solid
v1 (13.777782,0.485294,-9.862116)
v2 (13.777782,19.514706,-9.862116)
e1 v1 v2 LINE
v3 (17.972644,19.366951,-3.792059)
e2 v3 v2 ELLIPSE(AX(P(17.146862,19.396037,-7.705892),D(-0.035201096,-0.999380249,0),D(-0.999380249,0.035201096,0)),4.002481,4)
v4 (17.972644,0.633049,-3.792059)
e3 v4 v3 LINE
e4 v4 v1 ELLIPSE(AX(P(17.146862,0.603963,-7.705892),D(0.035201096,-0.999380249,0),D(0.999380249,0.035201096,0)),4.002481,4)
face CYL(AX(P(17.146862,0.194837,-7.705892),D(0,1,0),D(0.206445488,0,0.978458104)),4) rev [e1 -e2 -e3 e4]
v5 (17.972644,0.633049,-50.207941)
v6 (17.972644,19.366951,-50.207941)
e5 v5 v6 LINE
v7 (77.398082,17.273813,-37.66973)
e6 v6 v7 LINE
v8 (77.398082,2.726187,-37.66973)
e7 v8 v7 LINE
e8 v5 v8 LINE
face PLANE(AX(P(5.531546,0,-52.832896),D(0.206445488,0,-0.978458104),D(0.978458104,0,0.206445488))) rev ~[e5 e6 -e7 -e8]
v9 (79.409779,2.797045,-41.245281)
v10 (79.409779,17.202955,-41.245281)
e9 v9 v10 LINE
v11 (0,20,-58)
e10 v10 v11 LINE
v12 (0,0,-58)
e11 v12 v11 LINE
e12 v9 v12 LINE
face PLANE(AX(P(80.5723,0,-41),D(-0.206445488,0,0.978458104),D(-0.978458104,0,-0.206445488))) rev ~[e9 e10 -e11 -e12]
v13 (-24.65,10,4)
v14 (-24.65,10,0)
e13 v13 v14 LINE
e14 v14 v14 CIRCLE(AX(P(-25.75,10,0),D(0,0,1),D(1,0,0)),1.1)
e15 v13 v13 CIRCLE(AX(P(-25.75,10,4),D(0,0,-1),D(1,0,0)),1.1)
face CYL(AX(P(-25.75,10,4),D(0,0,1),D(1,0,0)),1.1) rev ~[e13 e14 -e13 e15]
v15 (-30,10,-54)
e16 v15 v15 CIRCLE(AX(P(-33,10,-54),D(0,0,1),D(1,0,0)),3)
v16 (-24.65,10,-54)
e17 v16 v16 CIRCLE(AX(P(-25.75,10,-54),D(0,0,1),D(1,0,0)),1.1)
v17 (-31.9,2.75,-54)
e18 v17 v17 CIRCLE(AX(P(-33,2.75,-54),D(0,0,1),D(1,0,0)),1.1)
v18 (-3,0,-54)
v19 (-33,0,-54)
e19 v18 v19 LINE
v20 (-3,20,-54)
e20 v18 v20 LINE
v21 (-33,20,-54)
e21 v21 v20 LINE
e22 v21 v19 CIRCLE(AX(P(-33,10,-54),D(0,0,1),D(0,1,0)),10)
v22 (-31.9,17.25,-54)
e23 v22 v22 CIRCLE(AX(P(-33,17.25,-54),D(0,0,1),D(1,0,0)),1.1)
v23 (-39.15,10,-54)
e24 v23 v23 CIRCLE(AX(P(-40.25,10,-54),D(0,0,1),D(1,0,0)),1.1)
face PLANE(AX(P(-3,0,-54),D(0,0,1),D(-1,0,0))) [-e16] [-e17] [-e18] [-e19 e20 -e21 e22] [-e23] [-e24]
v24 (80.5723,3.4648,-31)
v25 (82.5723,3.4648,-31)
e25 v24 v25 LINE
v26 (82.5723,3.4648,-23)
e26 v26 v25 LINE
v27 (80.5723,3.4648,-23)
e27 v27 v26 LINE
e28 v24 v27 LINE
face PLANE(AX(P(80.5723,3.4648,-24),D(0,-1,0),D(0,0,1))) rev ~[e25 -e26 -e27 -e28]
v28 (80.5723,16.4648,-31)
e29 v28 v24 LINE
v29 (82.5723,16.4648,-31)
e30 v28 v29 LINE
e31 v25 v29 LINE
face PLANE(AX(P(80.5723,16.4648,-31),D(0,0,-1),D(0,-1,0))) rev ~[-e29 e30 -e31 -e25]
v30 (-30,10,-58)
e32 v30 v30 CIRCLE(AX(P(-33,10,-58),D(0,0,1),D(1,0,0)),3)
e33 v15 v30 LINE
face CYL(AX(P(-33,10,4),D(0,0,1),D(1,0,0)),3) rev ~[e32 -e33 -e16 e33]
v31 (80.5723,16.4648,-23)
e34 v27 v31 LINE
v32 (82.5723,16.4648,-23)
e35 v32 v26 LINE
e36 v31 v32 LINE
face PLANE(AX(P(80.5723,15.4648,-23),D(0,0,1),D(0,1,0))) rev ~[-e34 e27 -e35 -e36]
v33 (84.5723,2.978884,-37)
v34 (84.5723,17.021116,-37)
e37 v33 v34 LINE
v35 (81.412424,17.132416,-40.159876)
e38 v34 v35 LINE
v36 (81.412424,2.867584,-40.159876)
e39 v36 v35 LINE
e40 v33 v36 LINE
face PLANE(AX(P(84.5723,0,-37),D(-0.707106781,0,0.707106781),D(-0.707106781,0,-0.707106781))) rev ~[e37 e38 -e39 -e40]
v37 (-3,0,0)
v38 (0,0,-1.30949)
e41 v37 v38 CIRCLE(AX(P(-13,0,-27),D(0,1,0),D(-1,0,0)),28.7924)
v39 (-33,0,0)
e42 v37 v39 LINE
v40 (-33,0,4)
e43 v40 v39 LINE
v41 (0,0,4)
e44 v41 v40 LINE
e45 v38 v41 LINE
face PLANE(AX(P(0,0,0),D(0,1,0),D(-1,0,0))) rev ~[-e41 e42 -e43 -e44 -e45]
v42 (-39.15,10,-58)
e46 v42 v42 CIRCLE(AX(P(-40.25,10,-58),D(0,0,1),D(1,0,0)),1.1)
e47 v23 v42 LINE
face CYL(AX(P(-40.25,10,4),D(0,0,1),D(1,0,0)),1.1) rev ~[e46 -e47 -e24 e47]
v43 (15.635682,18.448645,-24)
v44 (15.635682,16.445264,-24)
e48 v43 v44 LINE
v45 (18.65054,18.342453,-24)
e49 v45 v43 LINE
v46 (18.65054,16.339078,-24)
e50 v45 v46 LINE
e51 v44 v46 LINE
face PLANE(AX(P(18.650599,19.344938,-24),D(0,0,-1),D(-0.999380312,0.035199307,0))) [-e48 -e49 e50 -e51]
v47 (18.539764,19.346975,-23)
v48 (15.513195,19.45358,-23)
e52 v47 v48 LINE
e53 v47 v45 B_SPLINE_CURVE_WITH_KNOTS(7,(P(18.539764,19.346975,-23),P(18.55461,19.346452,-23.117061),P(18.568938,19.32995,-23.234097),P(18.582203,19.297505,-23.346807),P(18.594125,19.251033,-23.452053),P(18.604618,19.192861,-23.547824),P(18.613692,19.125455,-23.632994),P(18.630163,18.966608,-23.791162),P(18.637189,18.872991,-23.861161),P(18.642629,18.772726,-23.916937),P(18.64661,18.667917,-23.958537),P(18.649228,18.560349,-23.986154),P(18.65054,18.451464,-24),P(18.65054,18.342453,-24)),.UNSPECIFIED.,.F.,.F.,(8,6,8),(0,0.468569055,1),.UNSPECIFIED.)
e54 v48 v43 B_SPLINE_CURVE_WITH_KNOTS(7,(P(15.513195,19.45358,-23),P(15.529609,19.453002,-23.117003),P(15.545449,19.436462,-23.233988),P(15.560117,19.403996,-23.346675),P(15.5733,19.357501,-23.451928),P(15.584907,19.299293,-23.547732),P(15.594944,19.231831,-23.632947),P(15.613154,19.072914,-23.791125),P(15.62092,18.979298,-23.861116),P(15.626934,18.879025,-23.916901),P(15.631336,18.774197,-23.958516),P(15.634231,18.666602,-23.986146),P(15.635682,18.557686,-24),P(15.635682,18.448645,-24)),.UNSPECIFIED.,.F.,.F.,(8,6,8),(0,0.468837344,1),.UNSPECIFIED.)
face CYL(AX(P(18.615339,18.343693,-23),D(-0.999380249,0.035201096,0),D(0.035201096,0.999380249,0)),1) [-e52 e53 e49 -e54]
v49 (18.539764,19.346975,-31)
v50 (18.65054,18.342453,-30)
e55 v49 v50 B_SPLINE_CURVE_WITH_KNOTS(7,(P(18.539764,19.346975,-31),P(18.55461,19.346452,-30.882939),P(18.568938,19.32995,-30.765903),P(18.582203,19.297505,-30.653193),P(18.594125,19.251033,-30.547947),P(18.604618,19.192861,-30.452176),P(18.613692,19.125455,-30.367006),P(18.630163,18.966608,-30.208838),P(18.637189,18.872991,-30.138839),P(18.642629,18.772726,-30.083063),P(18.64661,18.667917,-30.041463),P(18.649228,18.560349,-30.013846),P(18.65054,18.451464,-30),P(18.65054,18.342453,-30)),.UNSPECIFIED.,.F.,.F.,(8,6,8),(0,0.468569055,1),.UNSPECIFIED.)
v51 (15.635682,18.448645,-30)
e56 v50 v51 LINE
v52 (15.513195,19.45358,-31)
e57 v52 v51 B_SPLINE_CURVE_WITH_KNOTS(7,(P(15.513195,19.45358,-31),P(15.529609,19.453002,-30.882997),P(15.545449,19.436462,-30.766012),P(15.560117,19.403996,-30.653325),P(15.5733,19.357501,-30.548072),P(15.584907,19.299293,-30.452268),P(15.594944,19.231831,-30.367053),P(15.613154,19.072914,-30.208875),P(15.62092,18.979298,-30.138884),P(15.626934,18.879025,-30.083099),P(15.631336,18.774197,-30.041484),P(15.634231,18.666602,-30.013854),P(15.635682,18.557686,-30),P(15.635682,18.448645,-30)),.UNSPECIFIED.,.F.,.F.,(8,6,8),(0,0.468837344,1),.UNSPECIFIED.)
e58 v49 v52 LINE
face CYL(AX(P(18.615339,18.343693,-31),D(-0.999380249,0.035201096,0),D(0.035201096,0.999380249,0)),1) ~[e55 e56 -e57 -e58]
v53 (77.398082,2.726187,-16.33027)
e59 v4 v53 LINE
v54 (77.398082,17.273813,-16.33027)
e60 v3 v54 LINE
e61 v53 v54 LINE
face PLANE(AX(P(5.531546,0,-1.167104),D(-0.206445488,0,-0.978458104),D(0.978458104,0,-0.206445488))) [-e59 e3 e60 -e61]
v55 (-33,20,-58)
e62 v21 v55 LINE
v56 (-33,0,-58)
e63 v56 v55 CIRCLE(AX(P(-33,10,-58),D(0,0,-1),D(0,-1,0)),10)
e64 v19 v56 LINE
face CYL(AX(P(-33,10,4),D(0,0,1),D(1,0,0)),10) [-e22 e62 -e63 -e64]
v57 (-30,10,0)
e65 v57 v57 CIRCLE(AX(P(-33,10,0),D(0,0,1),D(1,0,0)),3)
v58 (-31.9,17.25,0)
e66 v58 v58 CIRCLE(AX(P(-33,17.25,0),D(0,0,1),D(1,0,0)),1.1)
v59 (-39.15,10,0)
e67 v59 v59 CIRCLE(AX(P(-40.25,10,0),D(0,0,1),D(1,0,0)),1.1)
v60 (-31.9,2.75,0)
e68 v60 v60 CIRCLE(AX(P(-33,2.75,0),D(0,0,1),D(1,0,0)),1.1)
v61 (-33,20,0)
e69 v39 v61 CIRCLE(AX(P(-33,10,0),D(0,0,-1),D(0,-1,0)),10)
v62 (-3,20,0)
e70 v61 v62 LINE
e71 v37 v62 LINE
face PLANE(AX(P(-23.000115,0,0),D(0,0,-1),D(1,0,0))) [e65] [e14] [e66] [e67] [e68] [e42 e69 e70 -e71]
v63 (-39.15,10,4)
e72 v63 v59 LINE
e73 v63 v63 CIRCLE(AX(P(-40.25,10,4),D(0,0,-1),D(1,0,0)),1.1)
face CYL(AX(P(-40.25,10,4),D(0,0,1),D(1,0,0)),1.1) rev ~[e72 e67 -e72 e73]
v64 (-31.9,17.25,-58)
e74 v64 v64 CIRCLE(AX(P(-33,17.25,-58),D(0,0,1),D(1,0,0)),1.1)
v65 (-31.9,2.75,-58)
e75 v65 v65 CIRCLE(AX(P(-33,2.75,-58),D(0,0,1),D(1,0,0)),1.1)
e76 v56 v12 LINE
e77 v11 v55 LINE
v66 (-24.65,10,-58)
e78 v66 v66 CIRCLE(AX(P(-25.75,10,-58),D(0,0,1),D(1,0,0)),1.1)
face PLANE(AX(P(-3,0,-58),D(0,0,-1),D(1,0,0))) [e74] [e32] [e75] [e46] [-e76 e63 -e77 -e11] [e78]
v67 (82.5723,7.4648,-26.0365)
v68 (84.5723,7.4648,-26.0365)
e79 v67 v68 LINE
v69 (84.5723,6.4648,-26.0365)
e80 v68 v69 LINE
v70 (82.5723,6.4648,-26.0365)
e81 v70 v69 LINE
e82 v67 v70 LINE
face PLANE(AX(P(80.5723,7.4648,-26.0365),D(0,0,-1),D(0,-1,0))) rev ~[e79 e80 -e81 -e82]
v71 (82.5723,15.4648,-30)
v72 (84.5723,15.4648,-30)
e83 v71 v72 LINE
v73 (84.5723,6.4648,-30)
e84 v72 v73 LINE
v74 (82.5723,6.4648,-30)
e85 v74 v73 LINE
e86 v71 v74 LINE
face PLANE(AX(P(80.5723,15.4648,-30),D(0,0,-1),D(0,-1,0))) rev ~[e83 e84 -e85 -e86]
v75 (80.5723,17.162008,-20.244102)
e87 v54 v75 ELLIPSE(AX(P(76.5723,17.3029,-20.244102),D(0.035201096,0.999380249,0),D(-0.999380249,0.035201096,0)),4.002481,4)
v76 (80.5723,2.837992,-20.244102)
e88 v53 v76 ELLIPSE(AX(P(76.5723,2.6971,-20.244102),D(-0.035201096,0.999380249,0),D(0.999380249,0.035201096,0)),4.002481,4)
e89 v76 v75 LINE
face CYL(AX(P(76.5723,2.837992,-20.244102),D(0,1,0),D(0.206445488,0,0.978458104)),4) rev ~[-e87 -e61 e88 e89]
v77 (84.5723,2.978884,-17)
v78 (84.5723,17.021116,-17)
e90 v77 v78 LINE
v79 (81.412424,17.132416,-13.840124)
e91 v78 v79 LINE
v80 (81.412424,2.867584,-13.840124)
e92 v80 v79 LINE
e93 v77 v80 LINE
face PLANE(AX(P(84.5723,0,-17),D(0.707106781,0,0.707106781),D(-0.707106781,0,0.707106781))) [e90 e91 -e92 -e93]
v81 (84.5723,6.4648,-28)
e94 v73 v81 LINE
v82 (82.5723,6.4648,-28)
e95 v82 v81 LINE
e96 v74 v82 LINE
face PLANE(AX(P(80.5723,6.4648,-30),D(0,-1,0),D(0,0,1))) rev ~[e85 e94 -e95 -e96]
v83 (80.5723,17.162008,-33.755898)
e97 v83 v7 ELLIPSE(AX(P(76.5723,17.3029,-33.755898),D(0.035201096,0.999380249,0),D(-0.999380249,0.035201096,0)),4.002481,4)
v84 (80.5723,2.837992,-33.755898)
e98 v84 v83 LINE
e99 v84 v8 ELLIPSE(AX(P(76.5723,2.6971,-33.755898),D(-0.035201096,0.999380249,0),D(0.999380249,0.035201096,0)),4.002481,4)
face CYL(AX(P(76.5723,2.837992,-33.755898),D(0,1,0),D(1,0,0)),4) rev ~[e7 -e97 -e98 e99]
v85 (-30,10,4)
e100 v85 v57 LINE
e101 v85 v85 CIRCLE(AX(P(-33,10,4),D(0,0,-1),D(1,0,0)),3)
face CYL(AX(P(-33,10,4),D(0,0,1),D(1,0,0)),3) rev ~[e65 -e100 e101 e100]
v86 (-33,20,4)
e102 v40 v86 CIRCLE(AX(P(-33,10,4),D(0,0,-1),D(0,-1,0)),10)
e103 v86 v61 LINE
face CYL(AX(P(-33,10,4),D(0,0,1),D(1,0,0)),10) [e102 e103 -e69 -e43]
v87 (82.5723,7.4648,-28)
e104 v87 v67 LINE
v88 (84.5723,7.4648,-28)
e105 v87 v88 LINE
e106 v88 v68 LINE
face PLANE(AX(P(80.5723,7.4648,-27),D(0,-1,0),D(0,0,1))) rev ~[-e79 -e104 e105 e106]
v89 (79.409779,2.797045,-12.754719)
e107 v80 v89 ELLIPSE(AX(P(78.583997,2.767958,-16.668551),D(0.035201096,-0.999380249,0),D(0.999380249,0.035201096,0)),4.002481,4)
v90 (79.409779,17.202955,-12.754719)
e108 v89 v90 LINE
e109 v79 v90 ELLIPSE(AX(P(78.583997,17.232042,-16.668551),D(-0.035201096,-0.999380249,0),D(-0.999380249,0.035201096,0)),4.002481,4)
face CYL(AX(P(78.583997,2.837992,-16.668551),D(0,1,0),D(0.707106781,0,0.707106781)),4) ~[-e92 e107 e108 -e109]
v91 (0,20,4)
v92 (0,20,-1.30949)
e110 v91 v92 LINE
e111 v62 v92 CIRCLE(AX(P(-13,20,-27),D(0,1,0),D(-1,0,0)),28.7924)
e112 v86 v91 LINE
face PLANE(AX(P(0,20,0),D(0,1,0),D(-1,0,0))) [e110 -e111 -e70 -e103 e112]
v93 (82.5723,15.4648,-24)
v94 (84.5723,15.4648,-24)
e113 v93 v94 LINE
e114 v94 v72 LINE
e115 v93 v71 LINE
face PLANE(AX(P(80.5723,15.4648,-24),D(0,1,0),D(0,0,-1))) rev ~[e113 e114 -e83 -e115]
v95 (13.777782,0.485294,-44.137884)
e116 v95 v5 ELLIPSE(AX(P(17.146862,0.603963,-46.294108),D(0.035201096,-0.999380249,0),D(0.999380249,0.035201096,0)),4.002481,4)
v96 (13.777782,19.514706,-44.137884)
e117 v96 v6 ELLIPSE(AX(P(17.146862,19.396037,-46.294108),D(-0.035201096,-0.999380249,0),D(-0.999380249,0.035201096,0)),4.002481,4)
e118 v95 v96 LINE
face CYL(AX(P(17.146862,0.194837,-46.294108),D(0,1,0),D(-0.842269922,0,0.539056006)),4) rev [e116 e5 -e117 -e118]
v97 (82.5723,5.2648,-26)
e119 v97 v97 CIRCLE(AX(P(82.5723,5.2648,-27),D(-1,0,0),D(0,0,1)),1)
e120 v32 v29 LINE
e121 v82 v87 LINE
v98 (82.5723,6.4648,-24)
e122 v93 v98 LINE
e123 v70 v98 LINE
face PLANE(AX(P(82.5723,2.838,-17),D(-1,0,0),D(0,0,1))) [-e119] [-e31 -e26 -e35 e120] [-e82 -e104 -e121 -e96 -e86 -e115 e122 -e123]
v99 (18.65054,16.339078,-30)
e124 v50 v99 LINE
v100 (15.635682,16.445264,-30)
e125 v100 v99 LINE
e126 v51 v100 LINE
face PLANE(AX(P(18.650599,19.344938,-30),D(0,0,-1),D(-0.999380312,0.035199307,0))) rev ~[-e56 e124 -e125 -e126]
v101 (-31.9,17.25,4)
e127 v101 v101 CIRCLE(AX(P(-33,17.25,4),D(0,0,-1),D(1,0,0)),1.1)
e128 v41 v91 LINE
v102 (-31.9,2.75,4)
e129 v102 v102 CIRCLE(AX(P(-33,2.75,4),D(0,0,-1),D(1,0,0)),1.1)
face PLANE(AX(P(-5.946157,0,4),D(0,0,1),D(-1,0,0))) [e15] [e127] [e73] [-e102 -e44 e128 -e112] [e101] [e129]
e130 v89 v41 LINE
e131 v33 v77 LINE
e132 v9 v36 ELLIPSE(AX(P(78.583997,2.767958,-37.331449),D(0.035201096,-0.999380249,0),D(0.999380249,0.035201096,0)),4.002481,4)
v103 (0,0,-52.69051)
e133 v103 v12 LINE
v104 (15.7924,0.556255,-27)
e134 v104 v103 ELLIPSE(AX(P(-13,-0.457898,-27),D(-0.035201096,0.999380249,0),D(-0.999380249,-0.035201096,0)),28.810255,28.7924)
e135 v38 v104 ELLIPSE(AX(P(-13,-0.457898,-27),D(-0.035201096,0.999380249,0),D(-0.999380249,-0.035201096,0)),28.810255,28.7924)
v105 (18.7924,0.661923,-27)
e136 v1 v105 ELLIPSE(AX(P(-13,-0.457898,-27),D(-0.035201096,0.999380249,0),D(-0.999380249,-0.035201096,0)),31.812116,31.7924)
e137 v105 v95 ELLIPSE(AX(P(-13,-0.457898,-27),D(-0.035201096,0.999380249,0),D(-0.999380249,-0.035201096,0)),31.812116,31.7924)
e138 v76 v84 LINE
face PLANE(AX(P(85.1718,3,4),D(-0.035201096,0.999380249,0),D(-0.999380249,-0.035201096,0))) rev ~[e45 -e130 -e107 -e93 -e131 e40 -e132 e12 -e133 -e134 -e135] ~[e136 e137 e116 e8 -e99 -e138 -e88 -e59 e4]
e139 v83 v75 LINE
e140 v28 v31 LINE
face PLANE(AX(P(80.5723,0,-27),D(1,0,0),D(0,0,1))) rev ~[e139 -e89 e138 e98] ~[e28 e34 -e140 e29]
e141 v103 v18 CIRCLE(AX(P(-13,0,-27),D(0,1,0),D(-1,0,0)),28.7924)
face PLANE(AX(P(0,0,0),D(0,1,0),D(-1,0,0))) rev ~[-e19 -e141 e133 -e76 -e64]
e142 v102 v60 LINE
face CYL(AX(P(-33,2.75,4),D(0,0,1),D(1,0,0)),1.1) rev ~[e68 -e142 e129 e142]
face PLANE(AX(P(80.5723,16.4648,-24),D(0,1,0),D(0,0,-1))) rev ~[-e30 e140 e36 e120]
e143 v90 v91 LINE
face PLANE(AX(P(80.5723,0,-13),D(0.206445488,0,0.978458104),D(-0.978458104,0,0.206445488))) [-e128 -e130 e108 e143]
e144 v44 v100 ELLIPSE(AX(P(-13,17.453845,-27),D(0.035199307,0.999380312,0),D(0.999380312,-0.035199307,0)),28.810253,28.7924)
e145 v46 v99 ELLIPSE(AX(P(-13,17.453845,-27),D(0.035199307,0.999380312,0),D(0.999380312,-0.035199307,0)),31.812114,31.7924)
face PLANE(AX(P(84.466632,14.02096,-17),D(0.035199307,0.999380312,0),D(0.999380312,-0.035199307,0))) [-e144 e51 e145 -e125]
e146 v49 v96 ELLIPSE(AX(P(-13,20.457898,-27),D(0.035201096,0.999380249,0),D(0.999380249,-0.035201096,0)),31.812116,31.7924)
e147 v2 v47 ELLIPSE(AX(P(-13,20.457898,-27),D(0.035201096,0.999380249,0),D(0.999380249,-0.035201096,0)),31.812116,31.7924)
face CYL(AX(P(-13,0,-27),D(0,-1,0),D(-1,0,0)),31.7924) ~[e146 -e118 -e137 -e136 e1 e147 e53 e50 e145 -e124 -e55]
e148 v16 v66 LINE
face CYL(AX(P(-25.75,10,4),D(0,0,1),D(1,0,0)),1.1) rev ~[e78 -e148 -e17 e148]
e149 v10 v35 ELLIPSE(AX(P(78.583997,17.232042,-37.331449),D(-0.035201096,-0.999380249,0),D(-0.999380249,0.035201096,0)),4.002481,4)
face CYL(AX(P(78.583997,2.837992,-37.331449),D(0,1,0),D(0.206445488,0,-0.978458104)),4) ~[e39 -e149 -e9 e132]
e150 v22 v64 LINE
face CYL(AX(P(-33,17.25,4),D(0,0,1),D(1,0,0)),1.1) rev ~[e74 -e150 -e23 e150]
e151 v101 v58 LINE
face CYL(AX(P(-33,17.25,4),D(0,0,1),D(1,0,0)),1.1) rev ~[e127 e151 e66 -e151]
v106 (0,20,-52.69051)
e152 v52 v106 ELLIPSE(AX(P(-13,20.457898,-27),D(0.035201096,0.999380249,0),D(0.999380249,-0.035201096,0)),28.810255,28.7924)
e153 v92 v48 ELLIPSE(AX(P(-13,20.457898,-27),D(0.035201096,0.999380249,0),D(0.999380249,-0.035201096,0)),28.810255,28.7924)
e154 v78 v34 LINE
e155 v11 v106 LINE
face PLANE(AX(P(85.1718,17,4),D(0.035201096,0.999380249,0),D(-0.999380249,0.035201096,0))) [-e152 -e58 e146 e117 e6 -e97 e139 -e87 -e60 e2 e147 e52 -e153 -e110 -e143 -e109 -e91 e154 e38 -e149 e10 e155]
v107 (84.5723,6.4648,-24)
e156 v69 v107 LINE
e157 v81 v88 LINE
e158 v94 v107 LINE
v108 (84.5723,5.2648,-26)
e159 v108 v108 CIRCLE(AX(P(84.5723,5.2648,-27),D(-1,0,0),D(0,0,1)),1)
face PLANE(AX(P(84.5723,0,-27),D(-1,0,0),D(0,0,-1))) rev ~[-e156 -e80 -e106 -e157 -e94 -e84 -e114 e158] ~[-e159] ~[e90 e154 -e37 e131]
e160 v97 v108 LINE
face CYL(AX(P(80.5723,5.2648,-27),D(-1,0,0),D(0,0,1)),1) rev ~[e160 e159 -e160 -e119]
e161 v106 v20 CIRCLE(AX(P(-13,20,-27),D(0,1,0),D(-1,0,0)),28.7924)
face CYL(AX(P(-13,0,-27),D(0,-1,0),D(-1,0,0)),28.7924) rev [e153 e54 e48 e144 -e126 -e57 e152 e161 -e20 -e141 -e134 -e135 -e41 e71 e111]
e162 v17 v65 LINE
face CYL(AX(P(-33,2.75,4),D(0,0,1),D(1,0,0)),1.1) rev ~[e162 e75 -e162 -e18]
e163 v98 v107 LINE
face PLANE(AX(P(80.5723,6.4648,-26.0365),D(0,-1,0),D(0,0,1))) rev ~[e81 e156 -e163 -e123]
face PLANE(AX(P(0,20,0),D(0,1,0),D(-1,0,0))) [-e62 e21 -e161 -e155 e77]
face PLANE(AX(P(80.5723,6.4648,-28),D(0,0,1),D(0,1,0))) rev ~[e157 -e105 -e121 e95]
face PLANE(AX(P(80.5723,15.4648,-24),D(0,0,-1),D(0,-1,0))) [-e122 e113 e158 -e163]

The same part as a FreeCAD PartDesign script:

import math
import FreeCAD as App
import Part
import Sketcher
Q = App.Units.Quantity


def edges_at(feature, points):
    """Names of the edges that pass closest to the given points."""
    edges = feature.Shape.Edges
    near = lambda p: min(range(len(edges)), key=lambda i: edges[i].distToShape(Part.Vertex(*p))[0])
    return sorted({f"Edge{near(p) + 1}" for p in points})

doc = App.newDocument("Part")
body = doc.addObject("PartDesign::Body", "Body")

# Sketch on XZ plane
sketch1 = doc.addObject("Sketcher::SketchObject", "Sketch")
body.addObject(sketch1)
sketch1.AttachmentSupport = (doc.XZ_Plane, [""])
sketch1.MapMode = "FlatFace"
sketch1.addGeometry(Part.LineSegment(App.Vector(-3, 0, 0), App.Vector(-43, 0, 0)), False)
sketch1.addGeometry(Part.LineSegment(App.Vector(-43, 0, 0), App.Vector(-43, 4, 0)), False)
sketch1.addGeometry(Part.LineSegment(App.Vector(-43, 4, 0), App.Vector(0, 4, 0)), False)
sketch1.addGeometry(Part.LineSegment(App.Vector(0, 4, 0), App.Vector(80.5723, -13, 0)), False)
sketch1.addGeometry(Part.LineSegment(App.Vector(80.5723, -13, 0), App.Vector(84.5723, -17, 0)), False)
sketch1.addGeometry(Part.LineSegment(App.Vector(84.5723, -17, 0), App.Vector(84.5723, -37, 0)), False)
sketch1.addGeometry(Part.LineSegment(App.Vector(84.5723, -37, 0), App.Vector(80.5723, -41, 0)), False)
sketch1.addGeometry(Part.LineSegment(App.Vector(80.5723, -41, 0), App.Vector(0, -58, 0)), False)
sketch1.addGeometry(Part.LineSegment(App.Vector(0, -58, 0), App.Vector(-43, -58, 0)), False)
sketch1.addGeometry(Part.LineSegment(App.Vector(-43, -58, 0), App.Vector(-43, -54, 0)), False)
sketch1.addGeometry(Part.LineSegment(App.Vector(-43, -54, 0), App.Vector(-3, -54, 0)), False)
sketch1.addGeometry(Part.ArcOfCircle(Part.Circle(App.Vector(-13, -27, 0), App.Vector(0, 0, 1), 28.7924), math.radians(-69.676863), math.radians(69.676863)), False)
sketch1.addGeometry(Part.ArcOfCircle(Part.Circle(App.Vector(-13, -27, 0), App.Vector(0, 0, 1), 31.7924), math.radians(-54.345768), math.radians(54.345768)), False)
sketch1.addGeometry(Part.LineSegment(App.Vector(5.531546, -52.832896, 0), App.Vector(80.5723, -37, 0)), False)
sketch1.addGeometry(Part.LineSegment(App.Vector(80.5723, -37, 0), App.Vector(80.5723, -17, 0)), False)
sketch1.addGeometry(Part.LineSegment(App.Vector(80.5723, -17, 0), App.Vector(5.531546, -1.167104, 0)), False)
sketch1.addConstraint(Sketcher.Constraint("Coincident", 0, 2, 1, 1))
sketch1.addConstraint(Sketcher.Constraint("Coincident", 1, 2, 2, 1))
sketch1.addConstraint(Sketcher.Constraint("Coincident", 2, 2, 3, 1))
sketch1.addConstraint(Sketcher.Constraint("Coincident", 3, 2, 4, 1))
sketch1.addConstraint(Sketcher.Constraint("Coincident", 4, 2, 5, 1))
sketch1.addConstraint(Sketcher.Constraint("Coincident", 5, 2, 6, 1))
sketch1.addConstraint(Sketcher.Constraint("Coincident", 6, 2, 7, 1))
sketch1.addConstraint(Sketcher.Constraint("Coincident", 7, 2, 8, 1))
sketch1.addConstraint(Sketcher.Constraint("Coincident", 8, 2, 9, 1))
sketch1.addConstraint(Sketcher.Constraint("Coincident", 9, 2, 10, 1))
sketch1.addConstraint(Sketcher.Constraint("Coincident", 10, 2, 11, 1))
sketch1.addConstraint(Sketcher.Constraint("Coincident", 11, 2, 0, 1))
sketch1.addConstraint(Sketcher.Constraint("Coincident", 12, 1, 13, 1))
sketch1.addConstraint(Sketcher.Constraint("Coincident", 13, 2, 14, 1))
sketch1.addConstraint(Sketcher.Constraint("Coincident", 14, 2, 15, 1))
sketch1.addConstraint(Sketcher.Constraint("Coincident", 15, 2, 12, 2))
sketch1.addConstraint(Sketcher.Constraint("Horizontal", 0))
sketch1.addConstraint(Sketcher.Constraint("Vertical", 1))
sketch1.addConstraint(Sketcher.Constraint("Horizontal", 2))
sketch1.addConstraint(Sketcher.Constraint("Vertical", 5))
sketch1.addConstraint(Sketcher.Constraint("Horizontal", 8))
sketch1.addConstraint(Sketcher.Constraint("Vertical", 9))
sketch1.addConstraint(Sketcher.Constraint("Horizontal", 10))
sketch1.addConstraint(Sketcher.Constraint("Vertical", 14))
sketch1.addConstraint(Sketcher.Constraint("Coincident", 12, 3, 11, 3))
sketch1.addConstraint(Sketcher.Constraint("PointOnObject", 0, 2, -1))
sketch1.addConstraint(Sketcher.Constraint("PointOnObject", 2, 2, -2))
sketch1.addConstraint(Sketcher.Constraint("PointOnObject", 7, 2, -2))
sketch1.addConstraint(Sketcher.Constraint("DistanceX", 0, 2, 0, 1, Q("40 mm")))
sketch1.addConstraint(Sketcher.Constraint("DistanceX", 10, 1, 10, 2, Q("40 mm")))
sketch1.addConstraint(Sketcher.Constraint("DistanceY", 1, 1, 1, 2, Q("4 mm")))
sketch1.addConstraint(Sketcher.Constraint("DistanceY", 9, 1, 9, 2, Q("4 mm")))
sketch1.addConstraint(Sketcher.Constraint("DistanceY", 9, 2, -1, 1, Q("54 mm")))
sketch1.addConstraint(Sketcher.Constraint("DistanceX", 10, 2, -1, 1, Q("3 mm")))
sketch1.addConstraint(Sketcher.Constraint("DistanceX", 11, 2, -1, 1, Q("3 mm")))
sketch1.addConstraint(Sketcher.Constraint("DistanceX", 3, 2, 4, 2, Q("4 mm")))
sketch1.addConstraint(Sketcher.Constraint("DistanceY", 4, 2, 3, 2, Q("4 mm")))
sketch1.addConstraint(Sketcher.Constraint("DistanceY", 11, 3, 4, 2, Q("10 mm")))
sketch1.addConstraint(Sketcher.Constraint("DistanceY", 5, 2, 11, 3, Q("10 mm")))
sketch1.addConstraint(Sketcher.Constraint("DistanceX", 6, 2, 5, 2, Q("4 mm")))
sketch1.addConstraint(Sketcher.Constraint("DistanceY", 6, 2, 5, 2, Q("4 mm")))
sketch1.addConstraint(Sketcher.Constraint("DistanceX", 11, 3, 10, 2, Q("10 mm")))
sketch1.addConstraint(Sketcher.Constraint("DistanceX", 13, 2, 5, 2, Q("4 mm")))
sketch1.addConstraint(Sketcher.Constraint("DistanceY", 6, 2, 13, 2, Q("4 mm")))
sketch1.addConstraint(Sketcher.Constraint("DistanceY", 14, 2, 3, 2, Q("4 mm")))
sketch1.addConstraint(Sketcher.Constraint("Radius", 12, Q("31.7924 mm")))
sketch1.addConstraint(Sketcher.Constraint("DistanceY", 12, 1, -1, 1, Q("52.833 mm")))
sketch1.addConstraint(Sketcher.Constraint("DistanceY", 15, 2, -1, 1, Q("1.167 mm")))
sketch1.addConstraint(Sketcher.Constraint("Distance", 3, Q("82.3462 mm")))
pad1 = doc.addObject("PartDesign::Pad", "Pad")
body.addObject(pad1)
pad1.Profile = sketch1
pad1.Length = 20
pad1.Reversed = True

# Sketch on XY plane
sketch2 = doc.addObject("Sketcher::SketchObject", "Sketch001")
body.addObject(sketch2)
sketch2.AttachmentSupport = (doc.XY_Plane, [""])
sketch2.MapMode = "FlatFace"
sketch2.AttachmentOffset = App.Placement(App.Vector(0, 0, 4), App.Rotation())
sketch2.addGeometry(Part.LineSegment(App.Vector(85.2, 20, 0), App.Vector(0, 20, 0)), False)
sketch2.addGeometry(Part.LineSegment(App.Vector(0, 20, 0), App.Vector(85.2, 17, 0)), False)
sketch2.addGeometry(Part.LineSegment(App.Vector(85.2, 17, 0), App.Vector(85.2, 20, 0)), False)
sketch2.addGeometry(Part.ArcOfCircle(Part.Circle(App.Vector(-33, 10, 0), App.Vector(0, 0, 1), 10), math.radians(90), math.radians(180)), False)
sketch2.addGeometry(Part.LineSegment(App.Vector(-33, 20, 0), App.Vector(-43, 20, 0)), False)
sketch2.addGeometry(Part.LineSegment(App.Vector(-43, 20, 0), App.Vector(-43, 10, 0)), False)
sketch2.addGeometry(Part.Circle(App.Vector(-33, 17.2, 0), App.Vector(0, 0, 1), 1.1), False)
sketch2.addGeometry(Part.ArcOfCircle(Part.Circle(App.Vector(-33, 10, 0), App.Vector(0, 0, 1), 10), math.radians(180), math.radians(270)), False)
sketch2.addGeometry(Part.LineSegment(App.Vector(-43, 10, 0), App.Vector(-43, 0, 0)), False)
sketch2.addGeometry(Part.LineSegment(App.Vector(-43, 0, 0), App.Vector(-33, 0, 0)), False)
sketch2.addGeometry(Part.Circle(App.Vector(-40.2, 10, 0), App.Vector(0, 0, 1), 1.1), False)
sketch2.addGeometry(Part.LineSegment(App.Vector(85.2, 0, 0), App.Vector(85.2, 3, 0)), False)
sketch2.addGeometry(Part.LineSegment(App.Vector(85.2, 3, 0), App.Vector(0, 0, 0)), False)
sketch2.addGeometry(Part.LineSegment(App.Vector(0, 0, 0), App.Vector(85.2, 0, 0)), False)
sketch2.addGeometry(Part.Circle(App.Vector(-25.8, 10, 0), App.Vector(0, 0, 1), 1.1), False)
sketch2.addGeometry(Part.Circle(App.Vector(-33, 2.8, 0), App.Vector(0, 0, 1), 1.1), False)
sketch2.addGeometry(Part.Circle(App.Vector(-33, 10, 0), App.Vector(0, 0, 1), 3), False)
sketch2.addConstraint(Sketcher.Constraint("Coincident", 0, 2, 1, 1))
sketch2.addConstraint(Sketcher.Constraint("Coincident", 1, 2, 2, 1))
sketch2.addConstraint(Sketcher.Constraint("Coincident", 2, 2, 0, 1))
sketch2.addConstraint(Sketcher.Constraint("Tangent", 3, 1, 4, 1))
sketch2.addConstraint(Sketcher.Constraint("Coincident", 4, 2, 5, 1))
sketch2.addConstraint(Sketcher.Constraint("Tangent", 5, 2, 3, 2))
sketch2.addConstraint(Sketcher.Constraint("Tangent", 7, 1, 8, 1))
sketch2.addConstraint(Sketcher.Constraint("Coincident", 8, 2, 9, 1))
sketch2.addConstraint(Sketcher.Constraint("Tangent", 9, 2, 7, 2))
sketch2.addConstraint(Sketcher.Constraint("Coincident", 11, 2, 12, 1))
sketch2.addConstraint(Sketcher.Constraint("Coincident", 12, 2, 13, 1))
sketch2.addConstraint(Sketcher.Constraint("Coincident", 13, 2, 11, 1))
sketch2.addConstraint(Sketcher.Constraint("Horizontal", 0))
sketch2.addConstraint(Sketcher.Constraint("Vertical", 2))
sketch2.addConstraint(Sketcher.Constraint("Horizontal", 4))
sketch2.addConstraint(Sketcher.Constraint("Vertical", 5))
sketch2.addConstraint(Sketcher.Constraint("Vertical", 8))
sketch2.addConstraint(Sketcher.Constraint("Horizontal", 9))
sketch2.addConstraint(Sketcher.Constraint("Vertical", 11))
sketch2.addConstraint(Sketcher.Constraint("Horizontal", 13))
sketch2.addConstraint(Sketcher.Constraint("Coincident", 12, 2, -1, 1))
sketch2.addConstraint(Sketcher.Constraint("Coincident", 7, 3, 3, 3))
sketch2.addConstraint(Sketcher.Constraint("Coincident", 16, 3, 3, 3))
sketch2.addConstraint(Sketcher.Constraint("Equal", 3, 7))
sketch2.addConstraint(Sketcher.Constraint("Equal", 6, 10))
sketch2.addConstraint(Sketcher.Constraint("Equal", 10, 14))
sketch2.addConstraint(Sketcher.Constraint("Equal", 14, 15))
sketch2.addConstraint(Sketcher.Constraint("PointOnObject", 0, 2, -2))
sketch2.addConstraint(Sketcher.Constraint("PointOnObject", 8, 2, -1))
sketch2.addConstraint(Sketcher.Constraint("Horizontal", 7, 3, 10, 3))
sketch2.addConstraint(Sketcher.Constraint("Horizontal", 10, 3, 14, 3))
sketch2.addConstraint(Sketcher.Constraint("Horizontal", 2, 2, 3, 1))
sketch2.addConstraint(Sketcher.Constraint("Vertical", 3, 3, 6, 3))
sketch2.addConstraint(Sketcher.Constraint("Vertical", 7, 3, 15, 3))
sketch2.addConstraint(Sketcher.Constraint("Vertical", 2, 2, 11, 2))
sketch2.addConstraint(Sketcher.Constraint("Equal", 2, 11))
sketch2.addConstraint(Sketcher.Constraint("Diameter", 16, Q("6 mm")))
sketch2.addConstraint(Sketcher.Constraint("Radius", 3, Q("10 mm")))
sketch2.addConstraint(Sketcher.Constraint("Diameter", 6, Q("2.2 mm")))
sketch2.addConstraint(Sketcher.Constraint("DistanceY", 14, 3, 1, 2, Q("7 mm")))
sketch2.addConstraint(Sketcher.Constraint("DistanceX", 3, 3, -1, 1, Q("33 mm")))
sketch2.addConstraint(Sketcher.Constraint("DistanceX", 10, 3, 14, 3, Q("14.5 mm")))
sketch2.addConstraint(Sketcher.Constraint("DistanceY", 15, 3, 6, 3, Q("14.5 mm")))
sketch2.addConstraint(Sketcher.Constraint("DistanceY", -1, 1, 6, 3, Q("17.25 mm")))
sketch2.addConstraint(Sketcher.Constraint("DistanceX", 10, 3, -1, 1, Q("40.25 mm")))
sketch2.addConstraint(Sketcher.Constraint("DistanceX", 0, 2, 0, 1, Q("85.1718 mm")))
pocket1 = doc.addObject("PartDesign::Pocket", "Pocket")
body.addObject(pocket1)
pocket1.Profile = sketch2
pocket1.Length = 100
doc.recompute()

fillet = doc.addObject("PartDesign::Fillet", "Fillet")
body.addObject(fillet)
fillet.Base = (pocket1, edges_at(pocket1, [
    (80.572, 10, -41),
    (80.572, 10, -13),
    (80.572, 10, -37),
    (80.572, 10, -17),
]))
fillet.Radius = 4
doc.recompute()

fillet2 = doc.addObject("PartDesign::Fillet", "Fillet001")
body.addObject(fillet2)
fillet2.Base = (fillet, edges_at(fillet, [(5.531, 10, -52.833), (5.531, 10, -1.167)]))
fillet2.Radius = 4

# Sketch on YZ plane
sketch3 = doc.addObject("Sketcher::SketchObject", "Sketch002")
body.addObject(sketch3)
sketch3.AttachmentSupport = (doc.YZ_Plane, [""])
sketch3.MapMode = "FlatFace"
sketch3.AttachmentOffset = App.Placement(App.Vector(0, 0, 80.5723), App.Rotation())
sketch3.addGeometry(Part.LineSegment(App.Vector(15.5, -24, 0), App.Vector(15.5, -30, 0)), False)
sketch3.addGeometry(Part.LineSegment(App.Vector(15.5, -30, 0), App.Vector(6.5, -30, 0)), False)
sketch3.addGeometry(Part.LineSegment(App.Vector(6.5, -30, 0), App.Vector(6.5, -28, 0)), False)
sketch3.addGeometry(Part.LineSegment(App.Vector(6.5, -28, 0), App.Vector(7.5, -28, 0)), False)
sketch3.addGeometry(Part.LineSegment(App.Vector(7.5, -28, 0), App.Vector(7.5, -26, 0)), False)
sketch3.addGeometry(Part.LineSegment(App.Vector(7.5, -26, 0), App.Vector(6.5, -26, 0)), False)
sketch3.addGeometry(Part.LineSegment(App.Vector(6.5, -26, 0), App.Vector(6.5, -24, 0)), False)
sketch3.addGeometry(Part.LineSegment(App.Vector(6.5, -24, 0), App.Vector(15.5, -24, 0)), False)
sketch3.addGeometry(Part.Circle(App.Vector(5.3, -27, 0), App.Vector(0, 0, 1), 1), False)
sketch3.addConstraint(Sketcher.Constraint("Coincident", 0, 2, 1, 1))
sketch3.addConstraint(Sketcher.Constraint("Coincident", 1, 2, 2, 1))
sketch3.addConstraint(Sketcher.Constraint("Coincident", 2, 2, 3, 1))
sketch3.addConstraint(Sketcher.Constraint("Coincident", 3, 2, 4, 1))
sketch3.addConstraint(Sketcher.Constraint("Coincident", 4, 2, 5, 1))
sketch3.addConstraint(Sketcher.Constraint("Coincident", 5, 2, 6, 1))
sketch3.addConstraint(Sketcher.Constraint("Coincident", 6, 2, 7, 1))
sketch3.addConstraint(Sketcher.Constraint("Coincident", 7, 2, 0, 1))
sketch3.addConstraint(Sketcher.Constraint("Vertical", 0))
sketch3.addConstraint(Sketcher.Constraint("Horizontal", 1))
sketch3.addConstraint(Sketcher.Constraint("Vertical", 2))
sketch3.addConstraint(Sketcher.Constraint("Horizontal", 3))
sketch3.addConstraint(Sketcher.Constraint("Vertical", 4))
sketch3.addConstraint(Sketcher.Constraint("Horizontal", 5))
sketch3.addConstraint(Sketcher.Constraint("Vertical", 6))
sketch3.addConstraint(Sketcher.Constraint("Horizontal", 7))
sketch3.addConstraint(Sketcher.Constraint("Vertical", 2, 2, 5, 2))
sketch3.addConstraint(Sketcher.Constraint("Diameter", 8, Q("2 mm")))
sketch3.addConstraint(Sketcher.Constraint("DistanceX", 3, 1, 3, 2, Q("1 mm")))
sketch3.addConstraint(Sketcher.Constraint("DistanceY", 2, 1, 2, 2, Q("2 mm")))
sketch3.addConstraint(Sketcher.Constraint("DistanceY", 0, 2, 8, 3, Q("3 mm")))
sketch3.addConstraint(Sketcher.Constraint("DistanceX", 3, 2, 0, 2, Q("8 mm")))
sketch3.addConstraint(Sketcher.Constraint("DistanceY", 8, 3, 6, 2, Q("3 mm")))
sketch3.addConstraint(Sketcher.Constraint("DistanceY", 8, 3, -1, 1, Q("27 mm")))
sketch3.addConstraint(Sketcher.Constraint("DistanceX", 8, 3, 0, 2, Q("10.2 mm")))
sketch3.addConstraint(Sketcher.Constraint("DistanceY", 4, 1, 4, 2, Q("1.9635 mm")))
sketch3.addConstraint(Sketcher.Constraint("DistanceX", -1, 1, 8, 3, Q("5.2648 mm")))
pocket2 = doc.addObject("PartDesign::Pocket", "Pocket001")
body.addObject(pocket2)
pocket2.Profile = sketch3
pocket2.Length = 20
pocket2.Reversed = True

# Sketch on YZ plane
sketch4 = doc.addObject("Sketcher::SketchObject", "Sketch003")
body.addObject(sketch4)
sketch4.AttachmentSupport = (doc.YZ_Plane, [""])
sketch4.MapMode = "FlatFace"
sketch4.AttachmentOffset = App.Placement(App.Vector(0, 0, 80.5723), App.Rotation())
sketch4.addGeometry(Part.LineSegment(App.Vector(16.5, -31, 0), App.Vector(3.5, -31, 0)), False)
sketch4.addGeometry(Part.LineSegment(App.Vector(3.5, -31, 0), App.Vector(3.5, -23, 0)), False)
sketch4.addGeometry(Part.LineSegment(App.Vector(3.5, -23, 0), App.Vector(16.5, -23, 0)), False)
sketch4.addGeometry(Part.LineSegment(App.Vector(16.5, -23, 0), App.Vector(16.5, -31, 0)), False)
sketch4.addGeometry(Part.LineSegment(App.Vector(15.5, -24, 0), App.Vector(6.5, -24, 0)), False)
sketch4.addGeometry(Part.LineSegment(App.Vector(6.5, -24, 0), App.Vector(6.5, -26, 0)), False)
sketch4.addGeometry(Part.LineSegment(App.Vector(6.5, -26, 0), App.Vector(7.5, -26, 0)), False)
sketch4.addGeometry(Part.LineSegment(App.Vector(7.5, -26, 0), App.Vector(7.5, -28, 0)), False)
sketch4.addGeometry(Part.LineSegment(App.Vector(7.5, -28, 0), App.Vector(6.5, -28, 0)), False)
sketch4.addGeometry(Part.LineSegment(App.Vector(6.5, -28, 0), App.Vector(6.5, -30, 0)), False)
sketch4.addGeometry(Part.LineSegment(App.Vector(6.5, -30, 0), App.Vector(15.5, -30, 0)), False)
sketch4.addGeometry(Part.LineSegment(App.Vector(15.5, -30, 0), App.Vector(15.5, -24, 0)), False)
sketch4.addConstraint(Sketcher.Constraint("Coincident", 0, 2, 1, 1))
sketch4.addConstraint(Sketcher.Constraint("Coincident", 1, 2, 2, 1))
sketch4.addConstraint(Sketcher.Constraint("Coincident", 2, 2, 3, 1))
sketch4.addConstraint(Sketcher.Constraint("Coincident", 3, 2, 0, 1))
sketch4.addConstraint(Sketcher.Constraint("Coincident", 4, 2, 5, 1))
sketch4.addConstraint(Sketcher.Constraint("Coincident", 5, 2, 6, 1))
sketch4.addConstraint(Sketcher.Constraint("Coincident", 6, 2, 7, 1))
sketch4.addConstraint(Sketcher.Constraint("Coincident", 7, 2, 8, 1))
sketch4.addConstraint(Sketcher.Constraint("Coincident", 8, 2, 9, 1))
sketch4.addConstraint(Sketcher.Constraint("Coincident", 9, 2, 10, 1))
sketch4.addConstraint(Sketcher.Constraint("Coincident", 10, 2, 11, 1))
sketch4.addConstraint(Sketcher.Constraint("Coincident", 11, 2, 4, 1))
sketch4.addConstraint(Sketcher.Constraint("Horizontal", 0))
sketch4.addConstraint(Sketcher.Constraint("Vertical", 1))
sketch4.addConstraint(Sketcher.Constraint("Horizontal", 2))
sketch4.addConstraint(Sketcher.Constraint("Vertical", 3))
sketch4.addConstraint(Sketcher.Constraint("Horizontal", 4))
sketch4.addConstraint(Sketcher.Constraint("Vertical", 5))
sketch4.addConstraint(Sketcher.Constraint("Horizontal", 6))
sketch4.addConstraint(Sketcher.Constraint("Vertical", 7))
sketch4.addConstraint(Sketcher.Constraint("Horizontal", 8))
sketch4.addConstraint(Sketcher.Constraint("Vertical", 9))
sketch4.addConstraint(Sketcher.Constraint("Horizontal", 10))
sketch4.addConstraint(Sketcher.Constraint("Vertical", 11))
sketch4.addConstraint(Sketcher.Constraint("Vertical", 5, 2, 8, 2))
sketch4.addConstraint(Sketcher.Constraint("DistanceX", 0, 2, 0, 1, Q("13 mm")))
sketch4.addConstraint(Sketcher.Constraint("DistanceX", 6, 1, 6, 2, Q("1 mm")))
sketch4.addConstraint(Sketcher.Constraint("DistanceY", 1, 1, 1, 2, Q("8 mm")))
sketch4.addConstraint(Sketcher.Constraint("DistanceY", 9, 2, 9, 1, Q("2 mm")))
sketch4.addConstraint(Sketcher.Constraint("DistanceX", 1, 2, 4, 2, Q("3 mm")))
sketch4.addConstraint(Sketcher.Constraint("DistanceY", 4, 2, 1, 2, Q("1 mm")))
sketch4.addConstraint(Sketcher.Constraint("DistanceY", 7, 2, 4, 2, Q("4 mm")))
sketch4.addConstraint(Sketcher.Constraint("DistanceX", 10, 2, 3, 2, Q("1 mm")))
sketch4.addConstraint(Sketcher.Constraint("DistanceY", 0, 2, -1, 1, Q("31 mm")))
sketch4.addConstraint(Sketcher.Constraint("DistanceY", 5, 2, 5, 1, Q("2.0365 mm")))
sketch4.addConstraint(Sketcher.Constraint("DistanceX", -1, 1, 0, 2, Q("3.4648 mm")))
pocket3 = doc.addObject("PartDesign::Pocket", "Pocket002")
body.addObject(pocket3)
pocket3.Profile = sketch4
pocket3.Length = 2
pocket3.Reversed = True

# Sketch on an angled plane
sketch5 = doc.addObject("Sketcher::SketchObject", "Sketch004")
body.addObject(sketch5)
sketch5.Placement = App.Placement(App.Vector(84.5723, 17.0211, -17), App.Rotation(App.Vector(0.999380312, -0.035199307, 0), App.Vector(0, 0, -0.999999999), App.Vector(0.035199307, 0.999380312, 0), "ZXY"))
sketch5.addGeometry(Part.LineSegment(App.Vector(-98, 7, 0), App.Vector(-62, 7, 0)), False)
sketch5.addGeometry(Part.LineSegment(App.Vector(-62, 7, 0), App.Vector(-62, 13, 0)), False)
sketch5.addGeometry(Part.LineSegment(App.Vector(-62, 13, 0), App.Vector(-98, 13, 0)), False)
sketch5.addGeometry(Part.LineSegment(App.Vector(-98, 13, 0), App.Vector(-98, 7, 0)), False)
sketch5.addConstraint(Sketcher.Constraint("Coincident", 0, 2, 1, 1))
sketch5.addConstraint(Sketcher.Constraint("Coincident", 1, 2, 2, 1))
sketch5.addConstraint(Sketcher.Constraint("Coincident", 2, 2, 3, 1))
sketch5.addConstraint(Sketcher.Constraint("Coincident", 3, 2, 0, 1))
sketch5.addConstraint(Sketcher.Constraint("Horizontal", 0))
sketch5.addConstraint(Sketcher.Constraint("Vertical", 1))
sketch5.addConstraint(Sketcher.Constraint("Horizontal", 2))
sketch5.addConstraint(Sketcher.Constraint("Vertical", 3))
sketch5.addConstraint(Sketcher.Constraint("DistanceY", 1, 1, 1, 2, Q("6 mm")))
sketch5.addConstraint(Sketcher.Constraint("DistanceY", -1, 1, 0, 2, Q("7 mm")))
sketch5.addConstraint(Sketcher.Constraint("DistanceX", 0, 1, 0, 2, Q("35.1735 mm")))
sketch5.addConstraint(Sketcher.Constraint("DistanceX", 0, 2, -1, 1, Q("62.4593 mm")))
pocket4 = doc.addObject("PartDesign::Pocket", "Pocket003")
body.addObject(pocket4)
pocket4.Profile = sketch5
pocket4.Length = 3
doc.recompute()

fillet3 = doc.addObject("PartDesign::Fillet", "Fillet002")
body.addObject(fillet3)
fillet3.Base = (pocket4, edges_at(pocket4, [(17.143, 19.396, -30), (17.143, 19.396, -24)]))
fillet3.Radius = 1

doc.recompute()
